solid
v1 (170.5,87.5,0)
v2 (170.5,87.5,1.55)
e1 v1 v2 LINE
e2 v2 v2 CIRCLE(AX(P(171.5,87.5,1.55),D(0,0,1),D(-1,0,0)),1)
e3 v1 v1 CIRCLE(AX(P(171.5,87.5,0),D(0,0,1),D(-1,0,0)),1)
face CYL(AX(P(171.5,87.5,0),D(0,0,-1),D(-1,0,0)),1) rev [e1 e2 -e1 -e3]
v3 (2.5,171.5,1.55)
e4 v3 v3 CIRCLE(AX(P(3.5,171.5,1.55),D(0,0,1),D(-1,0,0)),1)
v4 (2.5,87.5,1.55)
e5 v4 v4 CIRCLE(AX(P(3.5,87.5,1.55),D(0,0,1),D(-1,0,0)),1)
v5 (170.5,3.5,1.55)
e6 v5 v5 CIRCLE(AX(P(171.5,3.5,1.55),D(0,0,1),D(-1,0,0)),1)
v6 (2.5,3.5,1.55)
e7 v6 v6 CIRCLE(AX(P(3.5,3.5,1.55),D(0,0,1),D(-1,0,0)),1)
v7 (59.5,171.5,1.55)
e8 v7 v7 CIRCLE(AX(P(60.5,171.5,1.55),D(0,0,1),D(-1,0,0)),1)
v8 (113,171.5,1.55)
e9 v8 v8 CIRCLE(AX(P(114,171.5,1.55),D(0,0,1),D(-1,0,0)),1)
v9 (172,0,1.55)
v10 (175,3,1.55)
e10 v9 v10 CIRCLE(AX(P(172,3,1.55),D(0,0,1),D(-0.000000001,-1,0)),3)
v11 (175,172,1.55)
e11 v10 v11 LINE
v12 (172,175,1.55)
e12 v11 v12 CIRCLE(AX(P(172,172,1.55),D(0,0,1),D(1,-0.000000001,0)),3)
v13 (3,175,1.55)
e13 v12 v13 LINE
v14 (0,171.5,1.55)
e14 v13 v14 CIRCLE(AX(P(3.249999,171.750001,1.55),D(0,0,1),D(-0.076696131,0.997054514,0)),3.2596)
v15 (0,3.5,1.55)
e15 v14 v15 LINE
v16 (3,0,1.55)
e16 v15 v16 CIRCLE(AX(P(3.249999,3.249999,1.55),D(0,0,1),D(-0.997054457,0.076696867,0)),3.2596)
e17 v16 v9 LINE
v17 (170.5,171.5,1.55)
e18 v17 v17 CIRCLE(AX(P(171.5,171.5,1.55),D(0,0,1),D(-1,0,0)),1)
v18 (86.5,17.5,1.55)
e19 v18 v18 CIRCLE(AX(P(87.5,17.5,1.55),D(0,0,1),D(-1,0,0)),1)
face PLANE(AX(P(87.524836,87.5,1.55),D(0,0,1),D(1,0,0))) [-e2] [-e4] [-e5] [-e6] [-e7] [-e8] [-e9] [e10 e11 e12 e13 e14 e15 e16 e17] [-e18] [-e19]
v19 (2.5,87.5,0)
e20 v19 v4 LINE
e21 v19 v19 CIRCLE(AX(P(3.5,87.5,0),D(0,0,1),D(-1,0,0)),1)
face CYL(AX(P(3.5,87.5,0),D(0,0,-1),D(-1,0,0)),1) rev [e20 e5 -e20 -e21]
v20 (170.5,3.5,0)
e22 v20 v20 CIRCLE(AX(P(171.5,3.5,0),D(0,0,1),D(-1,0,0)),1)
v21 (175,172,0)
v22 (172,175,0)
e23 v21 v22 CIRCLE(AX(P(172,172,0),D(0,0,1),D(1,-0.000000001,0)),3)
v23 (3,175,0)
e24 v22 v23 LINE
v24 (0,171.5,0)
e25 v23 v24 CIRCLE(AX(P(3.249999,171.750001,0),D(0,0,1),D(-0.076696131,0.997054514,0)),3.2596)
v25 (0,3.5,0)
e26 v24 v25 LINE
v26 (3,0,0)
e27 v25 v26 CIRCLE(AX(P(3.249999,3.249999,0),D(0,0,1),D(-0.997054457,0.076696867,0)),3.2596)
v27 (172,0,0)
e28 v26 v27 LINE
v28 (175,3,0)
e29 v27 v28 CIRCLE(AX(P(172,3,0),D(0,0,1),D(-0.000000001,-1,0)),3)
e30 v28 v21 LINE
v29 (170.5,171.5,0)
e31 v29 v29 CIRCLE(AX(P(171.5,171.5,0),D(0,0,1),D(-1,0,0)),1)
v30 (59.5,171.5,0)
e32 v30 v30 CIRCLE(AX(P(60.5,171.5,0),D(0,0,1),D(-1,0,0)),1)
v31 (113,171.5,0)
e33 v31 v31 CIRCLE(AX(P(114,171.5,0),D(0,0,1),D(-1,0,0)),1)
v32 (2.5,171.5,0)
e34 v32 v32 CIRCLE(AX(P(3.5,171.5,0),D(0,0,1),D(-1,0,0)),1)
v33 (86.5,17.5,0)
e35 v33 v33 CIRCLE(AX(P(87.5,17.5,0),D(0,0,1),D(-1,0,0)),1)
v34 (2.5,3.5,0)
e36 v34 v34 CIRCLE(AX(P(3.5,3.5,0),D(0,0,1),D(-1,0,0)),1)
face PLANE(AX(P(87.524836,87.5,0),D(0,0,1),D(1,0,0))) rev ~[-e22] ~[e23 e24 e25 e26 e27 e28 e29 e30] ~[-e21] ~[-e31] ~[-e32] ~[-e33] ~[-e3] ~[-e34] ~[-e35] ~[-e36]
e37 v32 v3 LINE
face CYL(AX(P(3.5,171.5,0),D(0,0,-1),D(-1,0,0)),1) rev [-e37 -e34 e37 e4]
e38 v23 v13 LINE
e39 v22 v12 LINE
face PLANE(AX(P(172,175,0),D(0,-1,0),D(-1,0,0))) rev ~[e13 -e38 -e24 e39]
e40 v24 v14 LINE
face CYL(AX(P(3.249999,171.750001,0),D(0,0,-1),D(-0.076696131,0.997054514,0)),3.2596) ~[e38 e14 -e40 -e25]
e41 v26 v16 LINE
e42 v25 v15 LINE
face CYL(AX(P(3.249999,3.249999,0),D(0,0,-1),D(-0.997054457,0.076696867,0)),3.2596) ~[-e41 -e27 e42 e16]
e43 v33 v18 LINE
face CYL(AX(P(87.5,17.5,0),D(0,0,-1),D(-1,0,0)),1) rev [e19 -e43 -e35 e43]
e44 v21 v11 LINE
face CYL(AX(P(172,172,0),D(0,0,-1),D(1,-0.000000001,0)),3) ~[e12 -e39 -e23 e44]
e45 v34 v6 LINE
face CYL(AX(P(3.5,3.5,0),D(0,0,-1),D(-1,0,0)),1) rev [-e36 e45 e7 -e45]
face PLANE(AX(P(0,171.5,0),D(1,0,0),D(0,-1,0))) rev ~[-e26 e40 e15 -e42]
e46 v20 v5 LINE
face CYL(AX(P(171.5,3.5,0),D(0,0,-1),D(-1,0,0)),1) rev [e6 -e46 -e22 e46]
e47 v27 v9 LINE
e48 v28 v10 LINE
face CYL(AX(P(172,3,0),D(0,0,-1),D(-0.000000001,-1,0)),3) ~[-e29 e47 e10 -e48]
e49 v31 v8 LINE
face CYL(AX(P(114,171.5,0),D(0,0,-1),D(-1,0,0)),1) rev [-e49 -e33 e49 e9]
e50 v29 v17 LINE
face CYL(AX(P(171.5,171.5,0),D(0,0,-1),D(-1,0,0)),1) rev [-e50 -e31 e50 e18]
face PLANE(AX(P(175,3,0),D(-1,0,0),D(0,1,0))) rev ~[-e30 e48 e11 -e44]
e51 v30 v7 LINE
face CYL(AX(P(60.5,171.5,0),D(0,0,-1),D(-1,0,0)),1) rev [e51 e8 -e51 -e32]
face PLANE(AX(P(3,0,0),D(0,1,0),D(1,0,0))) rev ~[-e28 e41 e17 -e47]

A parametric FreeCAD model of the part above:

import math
import FreeCAD as App
import Part
import Sketcher

V = App.Vector

doc = App.newDocument("Part")
body = doc.addObject("PartDesign::Body", "Body")

# Sketch on XY plane
sketch1 = body.newObject("Sketcher::SketchObject", "Sketch")
sketch1.AttachmentSupport = (doc.getObject("XY_Plane"), [""])
sketch1.MapMode = "FlatFace"
sketch1.addGeometry(Part.LineSegment(V(3, 0, 0), V(172, 0, 0)), False)
sketch1.addGeometry(Part.ArcOfCircle(Part.Circle(V(172, 3, 0), V(0, 0, 1), 3), math.radians(-90), math.radians(0)), False)
sketch1.addGeometry(Part.LineSegment(V(175, 3, 0), V(175, 172, 0)), False)
sketch1.addGeometry(Part.ArcOfCircle(Part.Circle(V(172, 172, 0), V(0, 0, 1), 3), math.radians(0), math.radians(90)), False)
sketch1.addGeometry(Part.LineSegment(V(172, 175, 0), V(3, 175, 0)), False)
sketch1.addGeometry(Part.ArcOfCircle(Part.Circle(V(3.2, 171.8, 0), V(0, 0, 1), 3.3), math.radians(94), math.radians(184)), False)
sketch1.addGeometry(Part.LineSegment(V(0, 171.5, 0), V(0, 3.5, 0)), False)
sketch1.addGeometry(Part.ArcOfCircle(Part.Circle(V(3.2, 3.2, 0), V(0, 0, 1), 3.3), math.radians(176), math.radians(266)), False)
sketch1.addGeometry(Part.Circle(V(3.5, 3.5, 0), V(0, 0, 1), 1), False)
sketch1.addGeometry(Part.Circle(V(87.5, 17.5, 0), V(0, 0, 1), 1), False)
sketch1.addGeometry(Part.Circle(V(171.5, 3.5, 0), V(0, 0, 1), 1), False)
sketch1.addGeometry(Part.Circle(V(3.5, 87.5, 0), V(0, 0, 1), 1), False)
sketch1.addGeometry(Part.Circle(V(3.5, 171.5, 0), V(0, 0, 1), 1), False)
sketch1.addGeometry(Part.Circle(V(60.5, 171.5, 0), V(0, 0, 1), 1), False)
sketch1.addGeometry(Part.Circle(V(171.5, 87.5, 0), V(0, 0, 1), 1), False)
sketch1.addGeometry(Part.Circle(V(114, 171.5, 0), V(0, 0, 1), 1), False)
sketch1.addGeometry(Part.Circle(V(171.5, 171.5, 0), V(0, 0, 1), 1), False)
sketch1.addConstraint(Sketcher.Constraint("Tangent", 0, 2, 1, 1))
sketch1.addConstraint(Sketcher.Constraint("Tangent", 1, 2, 2, 1))
sketch1.addConstraint(Sketcher.Constraint("Tangent", 2, 2, 3, 1))
sketch1.addConstraint(Sketcher.Constraint("Tangent", 3, 2, 4, 1))
sketch1.addConstraint(Sketcher.Constraint("Coincident", 4, 2, 5, 1))
sketch1.addConstraint(Sketcher.Constraint("Coincident", 5, 2, 6, 1))
sketch1.addConstraint(Sketcher.Constraint("Coincident", 6, 2, 7, 1))
sketch1.addConstraint(Sketcher.Constraint("Coincident", 7, 2, 0, 1))
sketch1.addConstraint(Sketcher.Constraint("Horizontal", 0))
sketch1.addConstraint(Sketcher.Constraint("Vertical", 2))
sketch1.addConstraint(Sketcher.Constraint("Horizontal", 4))
sketch1.addConstraint(Sketcher.Constraint("Vertical", 6))
sketch1.addConstraint(Sketcher.Constraint("Equal", 1, 3))
sketch1.addConstraint(Sketcher.Constraint("Equal", 5, 7))
sketch1.addConstraint(Sketcher.Constraint("Equal", 8, 9))
sketch1.addConstraint(Sketcher.Constraint("Equal", 9, 10))
sketch1.addConstraint(Sketcher.Constraint("Equal", 10, 11))
sketch1.addConstraint(Sketcher.Constraint("Equal", 11, 12))
sketch1.addConstraint(Sketcher.Constraint("Equal", 12, 13))
sketch1.addConstraint(Sketcher.Constraint("Equal", 13, 14))
sketch1.addConstraint(Sketcher.Constraint("Equal", 14, 15))
sketch1.addConstraint(Sketcher.Constraint("Equal", 15, 16))
sketch1.addConstraint(Sketcher.Constraint("PointOnObject", 0, 2, -1))
sketch1.addConstraint(Sketcher.Constraint("PointOnObject", 5, 2, -2))
sketch1.addConstraint(Sketcher.Constraint("Horizontal", 8, 3, 10, 3))
sketch1.addConstraint(Sketcher.Constraint("Horizontal", 12, 3, 13, 3))
sketch1.addConstraint(Sketcher.Constraint("Horizontal", 11, 3, 14, 3))
sketch1.addConstraint(Sketcher.Constraint("Horizontal", 13, 3, 15, 3))
sketch1.addConstraint(Sketcher.Constraint("Horizontal", 15, 3, 16, 3))
sketch1.addConstraint(Sketcher.Constraint("Horizontal", 16, 3, 5, 2))
sketch1.addConstraint(Sketcher.Constraint("Horizontal", 10, 3, 6, 2))
sketch1.addConstraint(Sketcher.Constraint("Vertical", 5, 3, 7, 3))
sketch1.addConstraint(Sketcher.Constraint("Vertical", 8, 3, 11, 3))
sketch1.addConstraint(Sketcher.Constraint("Vertical", 11, 3, 12, 3))
sketch1.addConstraint(Sketcher.Constraint("Vertical", 10, 3, 14, 3))
sketch1.addConstraint(Sketcher.Constraint("Vertical", 14, 3, 16, 3))
sketch1.addConstraint(Sketcher.Constraint("Vertical", 4, 2, 7, 2))
sketch1.addConstraint(Sketcher.Constraint("Equal", 4, 2))
sketch1.addConstraint(Sketcher.Constraint("Diameter", 8, 2.0))
sketch1.addConstraint(Sketcher.Constraint("Radius", 1, 3.0))
sketch1.addConstraint(Sketcher.Constraint("DistanceX", 0, 1, 0, 2, 169.0))
sketch1.addConstraint(Sketcher.Constraint("DistanceY", 6, 2, 6, 1, 168.0))
sketch1.addConstraint(Sketcher.Constraint("DistanceX", -1, 1, 1, 3, 172.0))
sketch1.addConstraint(Sketcher.Constraint("DistanceX", -1, 1, 15, 3, 114.0))
sketch1.addConstraint(Sketcher.Constraint("DistanceX", 8, 3, 9, 3, 84.0))
sketch1.addConstraint(Sketcher.Constraint("DistanceY", 8, 3, 9, 3, 14.0))
sketch1.addConstraint(Sketcher.Constraint("DistanceX", 9, 3, 10, 3, 84.0))
sketch1.addConstraint(Sketcher.Constraint("DistanceY", 8, 3, 11, 3, 84.0))
sketch1.addConstraint(Sketcher.Constraint("DistanceX", 12, 3, 13, 3, 57.0))
sketch1.addConstraint(Sketcher.Constraint("DistanceX", -1, 1, 8, 3, 3.5))
sketch1.addConstraint(Sketcher.Constraint("Radius", 5, 3.2596))
pad1 = body.newObject("PartDesign::Pad", "Pad")
pad1.Profile = sketch1
pad1.Length = 1.55

doc.recompute()
